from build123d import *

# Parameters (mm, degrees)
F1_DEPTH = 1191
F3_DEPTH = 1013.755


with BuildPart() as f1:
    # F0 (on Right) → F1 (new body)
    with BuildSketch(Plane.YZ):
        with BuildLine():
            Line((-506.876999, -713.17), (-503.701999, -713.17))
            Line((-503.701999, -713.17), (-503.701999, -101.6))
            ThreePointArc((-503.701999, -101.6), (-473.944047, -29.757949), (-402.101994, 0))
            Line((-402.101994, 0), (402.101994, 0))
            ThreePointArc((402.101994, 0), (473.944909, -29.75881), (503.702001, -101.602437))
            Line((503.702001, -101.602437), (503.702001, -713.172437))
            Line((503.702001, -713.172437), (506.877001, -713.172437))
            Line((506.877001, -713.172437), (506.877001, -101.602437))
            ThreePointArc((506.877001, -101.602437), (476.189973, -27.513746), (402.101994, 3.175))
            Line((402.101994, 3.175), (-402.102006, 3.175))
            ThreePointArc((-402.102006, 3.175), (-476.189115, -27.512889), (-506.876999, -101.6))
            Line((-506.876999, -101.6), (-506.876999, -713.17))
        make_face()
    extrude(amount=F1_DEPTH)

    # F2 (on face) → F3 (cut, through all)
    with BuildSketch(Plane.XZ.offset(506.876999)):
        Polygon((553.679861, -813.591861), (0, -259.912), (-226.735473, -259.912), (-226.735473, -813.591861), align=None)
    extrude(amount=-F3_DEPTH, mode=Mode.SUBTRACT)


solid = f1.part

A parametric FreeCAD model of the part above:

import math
import FreeCAD as App
import Part
import Sketcher

V = App.Vector
Q = App.Units.Quantity


def add_polygon(sketch, points):
    """Adds a closed chain of lines whose ends are joined by coincident constraints."""
    first, n = sketch.GeometryCount, len(points)
    for a, b in zip(points, points[1:] + points[:1]):
        sketch.addGeometry(Part.LineSegment(App.Vector(*a, 0), App.Vector(*b, 0)), False)
    for i in range(n):
        sketch.addConstraint(Sketcher.Constraint("Coincident", first + i, 2, first + (i + 1) % n, 1))

doc = App.newDocument("Part")
body = doc.addObject("PartDesign::Body", "Body")

# Sketch on YZ plane
sketch1 = body.newObject("Sketcher::SketchObject", "Sketch")
sketch1.AttachmentSupport = (doc.getObject("YZ_Plane"), [""])
sketch1.MapMode = "FlatFace"
sketch1.addGeometry([
    Part.LineSegment(V(-506.9, -713.2, 0), V(-503.7, -713.2, 0)),  # 0
    Part.LineSegment(V(-503.7, -713.2, 0), V(-503.7, -101.6, 0)),  # 1
    Part.ArcOfCircle(Part.Circle(V(-402.1, -101.6, 0), V(0, 0, 1), 101.6), math.radians(90), math.radians(180)),  # 2
    Part.LineSegment(V(-402.1, 0, 0), V(402.1, 0, 0)),  # 3
    Part.ArcOfCircle(Part.Circle(V(402.1, -101.6, 0), V(0, 0, 1), 101.6), math.radians(0), math.radians(90)),  # 4
    Part.LineSegment(V(503.7, -101.6, 0), V(503.7, -713.2, 0)),  # 5
    Part.LineSegment(V(503.7, -713.2, 0), V(506.9, -713.2, 0)),  # 6
    Part.LineSegment(V(506.9, -713.2, 0), V(506.9, -101.6, 0)),  # 7
    Part.ArcOfCircle(Part.Circle(V(402.1, -101.6, 0), V(0, 0, 1), 104.8), math.radians(0), math.radians(90)),  # 8
    Part.LineSegment(V(402.1, 3.2, 0), V(-402.1, 3.2, 0)),  # 9
    Part.ArcOfCircle(Part.Circle(V(-402.1, -101.6, 0), V(0, 0, 1), 104.8), math.radians(90), math.radians(180)),  # 10
    Part.LineSegment(V(-506.9, -101.6, 0), V(-506.9, -713.2, 0)),  # 11
], False)
sketch1.addConstraint([
    Sketcher.Constraint("Coincident", 0, 2, 1, 1),
    Sketcher.Constraint("Tangent", 1, 2, 2, 2),
    Sketcher.Constraint("Tangent", 2, 1, 3, 1),
    Sketcher.Constraint("Tangent", 3, 2, 4, 2),
    Sketcher.Constraint("Coincident", 4, 1, 5, 1),
    Sketcher.Constraint("Coincident", 5, 2, 6, 1),
    Sketcher.Constraint("Coincident", 6, 2, 7, 1),
    Sketcher.Constraint("Coincident", 7, 2, 8, 1),
    Sketcher.Constraint("Tangent", 8, 2, 9, 1),
    Sketcher.Constraint("Tangent", 9, 2, 10, 1),
    Sketcher.Constraint("Tangent", 10, 2, 11, 1),
    Sketcher.Constraint("Coincident", 11, 2, 0, 1),
    Sketcher.Constraint("Horizontal", 0),
    Sketcher.Constraint("Vertical", 1),
    Sketcher.Constraint("Horizontal", 3),
    Sketcher.Constraint("Vertical", 5),
    Sketcher.Constraint("Horizontal", 6),
    Sketcher.Constraint("Vertical", 7),
    Sketcher.Constraint("Horizontal", 9),
    Sketcher.Constraint("Vertical", 11),
    Sketcher.Constraint("Coincident", 8, 3, 4, 3),
    Sketcher.Constraint("Coincident", 10, 3, 2, 3),
    Sketcher.Constraint("Equal", 2, 4),
    Sketcher.Constraint("Symmetric", 2, 1, 3, 2, -1, 1),
    Sketcher.Constraint("Horizontal", 4, 1, 7, 2),
    Sketcher.Constraint("Equal", 1, 5),
    Sketcher.Constraint("Radius", 2, Q("3.9999999 in")),
    Sketcher.Constraint("Radius", 8, Q("4.125 in")),
    Sketcher.Constraint("DistanceX", 9, 2, 9, 1, Q("804.204 mm")),
    Sketcher.Constraint("DistanceY", 1, 1, 1, 2, Q("611.57 mm")),
    Sketcher.Constraint("DistanceY", 4, 1, 10, 3, Q("0.002439 mm")),
])
pad1 = body.newObject("PartDesign::Pad", "Pad")
pad1.Profile = sketch1
pad1.Length = 1191

# Sketch on XZ plane
sketch2 = body.newObject("Sketcher::SketchObject", "Sketch001")
sketch2.AttachmentSupport = (doc.getObject("XZ_Plane"), [""])
sketch2.MapMode = "FlatFace"
sketch2.AttachmentOffset = App.Placement(V(0, 0, 506.876999), App.Rotation())
add_polygon(sketch2, [(554, -814), (0, -260), (-227, -260), (-227, -814)])  # lines 0-3
sketch2.addConstraint([
    Sketcher.Constraint("Horizontal", 1),
    Sketcher.Constraint("Vertical", 2),
    Sketcher.Constraint("Horizontal", 3),
    Sketcher.Constraint("PointOnObject", 0, 2, -2),
    Sketcher.Constraint("Angle", 0, Q("135 deg")),
    Sketcher.Constraint("DistanceY", 2, 2, 2, 1, Q("553.679861 mm")),
    Sketcher.Constraint("DistanceY", 0, 2, -1, 1, Q("259.912 mm")),
    Sketcher.Constraint("DistanceX", 1, 2, 1, 1, Q("226.735473 mm")),
])
pocket1 = body.newObject("PartDesign::Pocket", "Pocket")
pocket1.Profile = sketch2
pocket1.Type = "ThroughAll"

doc.recompute()
